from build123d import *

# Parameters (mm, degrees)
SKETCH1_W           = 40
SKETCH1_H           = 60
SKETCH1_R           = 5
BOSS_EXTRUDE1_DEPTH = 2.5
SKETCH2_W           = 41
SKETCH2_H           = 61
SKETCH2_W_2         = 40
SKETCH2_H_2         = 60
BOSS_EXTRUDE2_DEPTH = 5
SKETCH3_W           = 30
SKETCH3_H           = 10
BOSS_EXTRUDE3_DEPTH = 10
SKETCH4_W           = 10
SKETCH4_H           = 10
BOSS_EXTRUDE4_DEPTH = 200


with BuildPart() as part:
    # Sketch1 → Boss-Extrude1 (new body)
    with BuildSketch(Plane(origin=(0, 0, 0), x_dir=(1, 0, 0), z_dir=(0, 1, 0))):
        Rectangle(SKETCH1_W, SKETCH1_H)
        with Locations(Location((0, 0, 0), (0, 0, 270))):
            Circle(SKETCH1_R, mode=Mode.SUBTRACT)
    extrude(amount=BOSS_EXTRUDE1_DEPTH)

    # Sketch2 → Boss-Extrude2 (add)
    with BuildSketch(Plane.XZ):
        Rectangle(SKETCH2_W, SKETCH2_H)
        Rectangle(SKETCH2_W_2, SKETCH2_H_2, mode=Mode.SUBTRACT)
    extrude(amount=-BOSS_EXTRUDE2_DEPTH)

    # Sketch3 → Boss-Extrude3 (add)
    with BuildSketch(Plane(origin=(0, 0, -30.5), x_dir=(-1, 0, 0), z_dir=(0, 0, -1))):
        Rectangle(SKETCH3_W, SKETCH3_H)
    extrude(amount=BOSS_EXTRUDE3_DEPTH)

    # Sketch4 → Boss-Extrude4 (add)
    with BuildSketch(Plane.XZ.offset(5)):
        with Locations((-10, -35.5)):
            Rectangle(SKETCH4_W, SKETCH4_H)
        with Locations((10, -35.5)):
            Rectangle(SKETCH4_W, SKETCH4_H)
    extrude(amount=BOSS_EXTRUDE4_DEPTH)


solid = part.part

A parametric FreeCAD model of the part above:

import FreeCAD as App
import Part
import Sketcher

V = App.Vector
Q = App.Units.Quantity

doc = App.newDocument("Part")
params = doc.addObject("Spreadsheet::Sheet", "Params")
for row, (alias, value) in enumerate([
    ("sketch1_diameter", "10 mm"),
    ("sketch1_width", "40 mm"),
    ("sketch1_height", "60 mm"),
    ("pad1_length", "2.5 mm"),
    ("sketch2_width", "41 mm"),
    ("sketch2_width2", "40 mm"),
    ("sketch2_height", "61 mm"),
    ("sketch2_height2", "60 mm"),
    ("pad2_length", "5 mm"),
    ("sketch3_width", "30 mm"),
    ("sketch3_height", "10 mm"),
    ("pad3_length", "10 mm"),
    ("sketch4_width", "10 mm"),
    ("pad4_length", "200 mm"),
], start=1):
    params.set(f"A{row}", alias)
    params.set(f"B{row}", "=" + value)
    params.setAlias(f"B{row}", alias)

body = doc.addObject("PartDesign::Body", "Body")

sketch1 = body.newObject("Sketcher::SketchObject", "Sketch")
sketch1.AttachmentSupport = (doc.getObject("XZ_Plane"), [""])
sketch1.MapMode = "FlatFace"
sketch1.addGeometry([
    Part.LineSegment(V(-20, -30, 0), V(-20, 30, 0)),
    Part.LineSegment(V(-20, 30, 0), V(20, 30, 0)),
    Part.LineSegment(V(20, 30, 0), V(20, -30, 0)),
    Part.LineSegment(V(20, -30, 0), V(-20, -30, 0)),
    Part.Circle(V(0, 0, 0), V(0, 0, 1), 5),
], False)
sketch1.addConstraint([
    Sketcher.Constraint("Coincident", 0, 2, 1, 1),
    Sketcher.Constraint("Coincident", 1, 2, 2, 1),
    Sketcher.Constraint("Coincident", 2, 2, 3, 1),
    Sketcher.Constraint("Coincident", 3, 2, 0, 1),
    Sketcher.Constraint("Vertical", 0),
    Sketcher.Constraint("Horizontal", 1),
    Sketcher.Constraint("Vertical", 2),
    Sketcher.Constraint("Horizontal", 3),
    Sketcher.Constraint("Coincident", 4, 3, -1, 1),
    Sketcher.Constraint("Symmetric", 0, 2, 2, 2, -1, 1),
    Sketcher.Constraint("Diameter", 4, Q("10 mm")),
    Sketcher.Constraint("DistanceX", 1, 1, 1, 2, Q("40 mm")),
    Sketcher.Constraint("DistanceY", 0, 1, 0, 2, Q("60 mm")),
])
sketch1.setExpression("Constraints[10]", "Params.sketch1_diameter")
sketch1.setExpression("Constraints[11]", "Params.sketch1_width")
sketch1.setExpression("Constraints[12]", "Params.sketch1_height")
pad1 = body.newObject("PartDesign::Pad", "Pad")
pad1.Profile = sketch1
pad1.setExpression("Length", "Params.pad1_length")
pad1.Reversed = True

sketch2 = body.newObject("Sketcher::SketchObject", "Sketch001")
sketch2.AttachmentSupport = (doc.getObject("XZ_Plane"), [""])
sketch2.MapMode = "FlatFace"
sketch2.addGeometry([
    Part.LineSegment(V(-20, 30, 0), V(-20, -30, 0)),
    Part.LineSegment(V(-20, -30, 0), V(20, -30, 0)),
    Part.LineSegment(V(20, -30, 0), V(20, 30, 0)),
    Part.LineSegment(V(20, 30, 0), V(-20, 30, 0)),
    Part.LineSegment(V(20, -30, 0), V(-20, -30, 0)),
    Part.LineSegment(V(-20, -30, 0), V(-20, 30, 0)),
    Part.LineSegment(V(-20, 30, 0), V(20, 30, 0)),
    Part.LineSegment(V(20, 30, 0), V(20, -30, 0)),
], False)
sketch2.addConstraint([
    Sketcher.Constraint("Coincident", 0, 2, 1, 1),
    Sketcher.Constraint("Coincident", 1, 2, 2, 1),
    Sketcher.Constraint("Coincident", 2, 2, 3, 1),
    Sketcher.Constraint("Coincident", 3, 2, 0, 1),
    Sketcher.Constraint("Coincident", 4, 2, 5, 1),
    Sketcher.Constraint("Coincident", 5, 2, 6, 1),
    Sketcher.Constraint("Coincident", 6, 2, 7, 1),
    Sketcher.Constraint("Coincident", 7, 2, 4, 1),
    Sketcher.Constraint("Vertical", 0),
    Sketcher.Constraint("Horizontal", 1),
    Sketcher.Constraint("Vertical", 2),
    Sketcher.Constraint("Horizontal", 3),
    Sketcher.Constraint("Horizontal", 4),
    Sketcher.Constraint("Vertical", 5),
    Sketcher.Constraint("Horizontal", 6),
    Sketcher.Constraint("Vertical", 7),
    Sketcher.Constraint("Symmetric", 0, 2, 2, 2, -1, 1),
    Sketcher.Constraint("Symmetric", 4, 2, 6, 2, -1, 1),
    Sketcher.Constraint("DistanceX", 1, 1, 1, 2, Q("41 mm")),
    Sketcher.Constraint("DistanceX", 4, 2, 4, 1, Q("40 mm")),
    Sketcher.Constraint("DistanceY", 0, 2, 0, 1, Q("61 mm")),
    Sketcher.Constraint("DistanceY", 5, 1, 5, 2, Q("60 mm")),
])
sketch2.setExpression("Constraints[18]", "Params.sketch2_width")
sketch2.setExpression("Constraints[19]", "Params.sketch2_width2")
sketch2.setExpression("Constraints[20]", "Params.sketch2_height")
sketch2.setExpression("Constraints[21]", "Params.sketch2_height2")
pad2 = body.newObject("PartDesign::Pad", "Pad001")
pad2.Profile = sketch2
pad2.setExpression("Length", "Params.pad2_length")
pad2.Reversed = True

sketch3 = body.newObject("Sketcher::SketchObject", "Sketch002")
sketch3.AttachmentSupport = (doc.getObject("XY_Plane"), [""])
sketch3.MapMode = "FlatFace"
sketch3.AttachmentOffset = App.Placement(V(0, 0, -30.5), App.Rotation())
sketch3.addGeometry([
    Part.LineSegment(V(15, 5, 0), V(15, -5, 0)),
    Part.LineSegment(V(15, -5, 0), V(-15, -5, 0)),
    Part.LineSegment(V(-15, -5, 0), V(-15, 5, 0)),
    Part.LineSegment(V(-15, 5, 0), V(15, 5, 0)),
], False)
sketch3.addConstraint([
    Sketcher.Constraint("Coincident", 0, 2, 1, 1),
    Sketcher.Constraint("Coincident", 1, 2, 2, 1),
    Sketcher.Constraint("Coincident", 2, 2, 3, 1),
    Sketcher.Constraint("Coincident", 3, 2, 0, 1),
    Sketcher.Constraint("Vertical", 0),
    Sketcher.Constraint("Horizontal", 1),
    Sketcher.Constraint("Vertical", 2),
    Sketcher.Constraint("Horizontal", 3),
    Sketcher.Constraint("Symmetric", 0, 2, 2, 2, -1, 1),
    Sketcher.Constraint("DistanceX", 1, 2, 1, 1, Q("30 mm")),
    Sketcher.Constraint("DistanceY", 0, 2, 0, 1, Q("10 mm")),
])
sketch3.setExpression("Constraints[9]", "Params.sketch3_width")
sketch3.setExpression("Constraints[10]", "Params.sketch3_height")
pad3 = body.newObject("PartDesign::Pad", "Pad002")
pad3.Profile = sketch3
pad3.setExpression("Length", "Params.pad3_length")
pad3.Reversed = True

sketch4 = body.newObject("Sketcher::SketchObject", "Sketch003")
sketch4.AttachmentSupport = (doc.getObject("XZ_Plane"), [""])
sketch4.MapMode = "FlatFace"
sketch4.AttachmentOffset = App.Placement(V(0, 0, 5), App.Rotation())
sketch4.addGeometry([
    Part.LineSegment(V(-15, -30, 0), V(-15, -40, 0)),
    Part.LineSegment(V(-15, -40, 0), V(-5, -40, 0)),
    Part.LineSegment(V(-5, -40, 0), V(-5, -30, 0)),
    Part.LineSegment(V(-5, -30, 0), V(-15, -30, 0)),
    Part.LineSegment(V(5, -30, 0), V(5, -40, 0)),
    Part.LineSegment(V(5, -40, 0), V(15, -40, 0)),
    Part.LineSegment(V(15, -40, 0), V(15, -30, 0)),
    Part.LineSegment(V(15, -30, 0), V(5, -30, 0)),
], False)
sketch4.addConstraint([
    Sketcher.Constraint("Coincident", 0, 2, 1, 1),
    Sketcher.Constraint("Coincident", 1, 2, 2, 1),
    Sketcher.Constraint("Coincident", 2, 2, 3, 1),
    Sketcher.Constraint("Coincident", 3, 2, 0, 1),
    Sketcher.Constraint("Coincident", 4, 2, 5, 1),
    Sketcher.Constraint("Coincident", 5, 2, 6, 1),
    Sketcher.Constraint("Coincident", 6, 2, 7, 1),
    Sketcher.Constraint("Coincident", 7, 2, 4, 1),
    Sketcher.Constraint("Vertical", 0),
    Sketcher.Constraint("Horizontal", 1),
    Sketcher.Constraint("Vertical", 2),
    Sketcher.Constraint("Horizontal", 3),
    Sketcher.Constraint("Vertical", 4),
    Sketcher.Constraint("Horizontal", 5),
    Sketcher.Constraint("Vertical", 6),
    Sketcher.Constraint("Horizontal", 7),
    Sketcher.Constraint("Symmetric", 1, 2, 4, 2, -2),
    Sketcher.Constraint("Symmetric", 3, 2, 6, 2, -2),
    Sketcher.Constraint("Equal", 7, 0),
    Sketcher.Constraint("DistanceX", 1, 1, 1, 2, Q("10 mm")),
    Sketcher.Constraint("DistanceX", 0, 2, -1, 1, Q("15 mm")),
    Sketcher.Constraint("DistanceY", 0, 2, -1, 1, Q("40.5 mm")),
])
sketch4.setExpression("Constraints[19]", "Params.sketch4_width")
pad4 = body.newObject("PartDesign::Pad", "Pad003")
pad4.Profile = sketch4
pad4.setExpression("Length", "Params.pad4_length")

doc.recompute()
